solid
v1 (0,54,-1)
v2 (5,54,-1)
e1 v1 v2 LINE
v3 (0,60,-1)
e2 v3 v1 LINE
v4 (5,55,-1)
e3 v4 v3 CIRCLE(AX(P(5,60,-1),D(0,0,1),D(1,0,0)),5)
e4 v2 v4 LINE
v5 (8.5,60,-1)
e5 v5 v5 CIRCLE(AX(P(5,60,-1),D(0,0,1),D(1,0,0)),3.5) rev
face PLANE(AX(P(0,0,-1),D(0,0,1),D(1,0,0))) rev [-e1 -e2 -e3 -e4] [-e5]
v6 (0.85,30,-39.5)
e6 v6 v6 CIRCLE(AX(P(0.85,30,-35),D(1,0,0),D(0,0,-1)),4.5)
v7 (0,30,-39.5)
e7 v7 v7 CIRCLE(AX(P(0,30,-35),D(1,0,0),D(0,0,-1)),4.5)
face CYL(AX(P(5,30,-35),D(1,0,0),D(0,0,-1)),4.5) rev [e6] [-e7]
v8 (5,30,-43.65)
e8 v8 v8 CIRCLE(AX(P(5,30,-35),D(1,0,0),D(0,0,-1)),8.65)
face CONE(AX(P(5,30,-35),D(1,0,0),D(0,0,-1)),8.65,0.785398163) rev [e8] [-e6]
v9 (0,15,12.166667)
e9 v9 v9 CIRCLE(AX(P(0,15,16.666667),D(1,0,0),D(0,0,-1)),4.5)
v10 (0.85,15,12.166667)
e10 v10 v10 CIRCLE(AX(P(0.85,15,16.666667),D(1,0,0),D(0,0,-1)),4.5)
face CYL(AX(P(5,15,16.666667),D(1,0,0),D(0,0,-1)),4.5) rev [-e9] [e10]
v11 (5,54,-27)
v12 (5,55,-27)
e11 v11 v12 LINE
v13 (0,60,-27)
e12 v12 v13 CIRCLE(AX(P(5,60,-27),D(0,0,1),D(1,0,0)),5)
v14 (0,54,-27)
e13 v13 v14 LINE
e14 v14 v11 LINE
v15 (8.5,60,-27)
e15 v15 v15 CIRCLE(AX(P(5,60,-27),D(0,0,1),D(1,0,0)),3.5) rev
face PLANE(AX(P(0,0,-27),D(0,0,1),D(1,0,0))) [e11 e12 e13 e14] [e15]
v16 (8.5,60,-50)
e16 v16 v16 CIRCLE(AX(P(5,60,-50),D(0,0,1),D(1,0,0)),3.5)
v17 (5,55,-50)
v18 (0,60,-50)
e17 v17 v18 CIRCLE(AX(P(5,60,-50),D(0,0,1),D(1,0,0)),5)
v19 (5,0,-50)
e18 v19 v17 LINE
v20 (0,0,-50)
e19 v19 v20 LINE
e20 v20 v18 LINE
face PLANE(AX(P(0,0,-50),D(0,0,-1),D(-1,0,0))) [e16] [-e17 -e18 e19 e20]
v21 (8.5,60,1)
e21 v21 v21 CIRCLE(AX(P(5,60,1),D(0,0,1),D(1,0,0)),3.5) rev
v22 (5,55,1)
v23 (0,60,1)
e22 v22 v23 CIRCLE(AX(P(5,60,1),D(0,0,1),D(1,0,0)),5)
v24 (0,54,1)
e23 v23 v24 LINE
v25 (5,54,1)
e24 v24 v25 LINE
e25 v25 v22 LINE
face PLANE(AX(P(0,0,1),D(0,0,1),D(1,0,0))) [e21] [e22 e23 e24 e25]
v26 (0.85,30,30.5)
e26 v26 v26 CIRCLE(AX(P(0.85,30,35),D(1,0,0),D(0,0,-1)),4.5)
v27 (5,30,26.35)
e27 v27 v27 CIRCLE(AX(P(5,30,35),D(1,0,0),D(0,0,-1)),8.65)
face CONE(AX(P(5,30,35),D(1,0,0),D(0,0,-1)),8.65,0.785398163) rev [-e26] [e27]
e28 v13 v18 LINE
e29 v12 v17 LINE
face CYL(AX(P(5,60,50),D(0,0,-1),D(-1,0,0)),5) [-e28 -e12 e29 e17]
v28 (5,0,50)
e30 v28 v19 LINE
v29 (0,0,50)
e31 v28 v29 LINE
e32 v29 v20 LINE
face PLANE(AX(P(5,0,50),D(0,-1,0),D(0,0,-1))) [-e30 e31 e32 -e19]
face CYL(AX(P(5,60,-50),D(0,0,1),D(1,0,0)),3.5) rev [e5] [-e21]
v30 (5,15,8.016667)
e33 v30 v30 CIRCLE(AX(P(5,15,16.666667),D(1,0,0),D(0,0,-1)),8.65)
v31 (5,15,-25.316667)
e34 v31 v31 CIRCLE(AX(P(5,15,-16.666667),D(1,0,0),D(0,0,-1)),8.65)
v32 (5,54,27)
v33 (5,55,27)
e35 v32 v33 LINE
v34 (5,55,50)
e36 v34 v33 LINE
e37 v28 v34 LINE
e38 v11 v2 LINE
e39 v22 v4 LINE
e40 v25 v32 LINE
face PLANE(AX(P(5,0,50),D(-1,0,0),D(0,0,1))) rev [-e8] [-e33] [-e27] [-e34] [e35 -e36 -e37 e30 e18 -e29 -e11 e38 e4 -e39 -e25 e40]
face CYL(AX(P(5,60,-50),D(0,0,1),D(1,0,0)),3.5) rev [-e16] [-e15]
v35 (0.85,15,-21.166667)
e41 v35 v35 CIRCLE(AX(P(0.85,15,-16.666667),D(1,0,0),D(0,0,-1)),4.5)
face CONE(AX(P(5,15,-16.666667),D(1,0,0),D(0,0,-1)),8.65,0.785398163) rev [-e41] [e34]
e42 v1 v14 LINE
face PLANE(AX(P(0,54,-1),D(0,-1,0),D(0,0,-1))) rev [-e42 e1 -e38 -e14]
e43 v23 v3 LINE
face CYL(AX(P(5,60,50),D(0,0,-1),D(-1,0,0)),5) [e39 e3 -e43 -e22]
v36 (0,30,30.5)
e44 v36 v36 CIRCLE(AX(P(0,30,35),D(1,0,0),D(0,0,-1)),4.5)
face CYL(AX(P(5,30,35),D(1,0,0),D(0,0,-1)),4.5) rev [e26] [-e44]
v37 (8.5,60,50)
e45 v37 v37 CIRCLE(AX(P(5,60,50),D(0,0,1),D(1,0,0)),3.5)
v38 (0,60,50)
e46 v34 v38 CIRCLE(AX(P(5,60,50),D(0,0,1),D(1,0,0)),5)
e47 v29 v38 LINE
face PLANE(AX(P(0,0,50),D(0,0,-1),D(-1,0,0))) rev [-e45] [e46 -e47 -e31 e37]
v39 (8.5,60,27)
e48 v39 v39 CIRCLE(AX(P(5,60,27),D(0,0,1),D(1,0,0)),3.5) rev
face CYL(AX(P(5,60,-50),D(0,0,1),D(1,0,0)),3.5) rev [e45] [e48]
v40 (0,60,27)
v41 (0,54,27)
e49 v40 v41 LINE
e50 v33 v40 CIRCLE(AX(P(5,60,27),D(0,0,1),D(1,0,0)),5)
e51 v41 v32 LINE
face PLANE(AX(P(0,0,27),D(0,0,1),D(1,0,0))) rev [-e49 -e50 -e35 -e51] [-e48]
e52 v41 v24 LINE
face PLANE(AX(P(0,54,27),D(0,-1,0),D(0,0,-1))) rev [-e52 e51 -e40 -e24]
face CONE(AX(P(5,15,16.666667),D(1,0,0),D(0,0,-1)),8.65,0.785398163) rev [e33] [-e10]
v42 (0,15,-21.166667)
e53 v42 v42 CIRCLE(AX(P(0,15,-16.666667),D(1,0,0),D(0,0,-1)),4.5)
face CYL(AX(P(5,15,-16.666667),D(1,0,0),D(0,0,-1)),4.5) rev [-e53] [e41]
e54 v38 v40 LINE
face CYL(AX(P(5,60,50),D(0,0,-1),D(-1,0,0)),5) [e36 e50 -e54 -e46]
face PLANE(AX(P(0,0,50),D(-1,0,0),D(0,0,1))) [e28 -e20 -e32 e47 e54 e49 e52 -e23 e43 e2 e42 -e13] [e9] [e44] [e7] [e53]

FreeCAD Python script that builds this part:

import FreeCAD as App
import Part
import Sketcher
from FreeCAD import Vector
Q = App.Units.Quantity

doc = App.newDocument("Part")
params = doc.addObject("Spreadsheet::Sheet", "Params")
for row, (alias, value) in enumerate([
    ("sketch1_width", "5 mm"),
    ("sketch1_height", "60 mm"),
    ("pad1_length", "100 mm"),
    ("sketch2_diameter", "10 mm"),
    ("sketch3_height", "100 mm"),
    ("sketch4_diameter", "7 mm"),
    ("sketch5_width", "5 mm"),
    ("sketch5_height", "4.5 mm"),
    ("sketch5_width2", "0.85 mm"),
    ("groove_angle", "360 deg"),
    ("linearpattern_pitch", "23.687784 mm"),
    ("sketch6_width", "5 mm"),
    ("sketch6_height", "4.5 mm"),
    ("sketch6_width2", "0.85 mm"),
    ("groove2_angle", "360 deg"),
    ("sketch7_width", "11 mm"),
    ("sketch7_height", "26 mm"),
], start=1):
    params.set(f"A{row}", alias)
    params.set(f"B{row}", "=" + value)
    params.setAlias(f"B{row}", alias)

body = doc.addObject("PartDesign::Body", "Body")

# Sketch on XY plane
sketch1 = body.newObject("Sketcher::SketchObject", "Sketch")
sketch1.AttachmentSupport = (doc.getObject("XY_Plane"), [""])
sketch1.MapMode = "FlatFace"
sketch1.addGeometry(Part.LineSegment(Vector(0, 60, 0), Vector(0, 0, 0)), False)
sketch1.addGeometry(Part.LineSegment(Vector(0, 0, 0), Vector(5, 0, 0)), False)
sketch1.addGeometry(Part.LineSegment(Vector(5, 0, 0), Vector(5, 60, 0)), False)
sketch1.addGeometry(Part.LineSegment(Vector(5, 60, 0), Vector(0, 60, 0)), False)
sketch1.addConstraint(Sketcher.Constraint("Coincident", 0, 2, 1, 1))
sketch1.addConstraint(Sketcher.Constraint("Coincident", 1, 2, 2, 1))
sketch1.addConstraint(Sketcher.Constraint("Coincident", 2, 2, 3, 1))
sketch1.addConstraint(Sketcher.Constraint("Coincident", 3, 2, 0, 1))
sketch1.addConstraint(Sketcher.Constraint("Vertical", 0))
sketch1.addConstraint(Sketcher.Constraint("Horizontal", 1))
sketch1.addConstraint(Sketcher.Constraint("Vertical", 2))
sketch1.addConstraint(Sketcher.Constraint("Horizontal", 3))
sketch1.addConstraint(Sketcher.Constraint("Coincident", 0, 2, -1, 1))
sketch1.addConstraint(Sketcher.Constraint("DistanceX", 1, 1, 1, 2, 5.0))
sketch1.addConstraint(Sketcher.Constraint("DistanceY", 0, 2, 0, 1, 60.0))
sketch1.setExpression("Constraints[9]", "Params.sketch1_width")
sketch1.setExpression("Constraints[10]", "Params.sketch1_height")
pad1 = body.newObject("PartDesign::Pad", "Pad")
pad1.Profile = sketch1
pad1.setExpression("Length", "Params.pad1_length")
pad1.Midplane = True

# Sketch on XY plane
sketch2 = body.newObject("Sketcher::SketchObject", "Sketch001")
sketch2.AttachmentSupport = (doc.getObject("XY_Plane"), [""])
sketch2.MapMode = "FlatFace"
sketch2.AttachmentOffset = App.Placement(Vector(0, 0, 50), App.Rotation())
sketch2.addGeometry(Part.Circle(Vector(5, 60, 0), Vector(0, 0, 1), 5), False)
sketch2.addConstraint(Sketcher.Constraint("Diameter", 0, 10.0))
sketch2.addConstraint(Sketcher.Constraint("DistanceX", -1, 1, 0, 3, 5.0))
sketch2.addConstraint(Sketcher.Constraint("DistanceY", -1, 1, 0, 3, 60.0))
sketch2.setExpression("Constraints[0]", "Params.sketch2_diameter")

# Sketch on XZ plane
sketch3 = body.newObject("Sketcher::SketchObject", "Sketch002")
sketch3.AttachmentSupport = (doc.getObject("XZ_Plane"), [""])
sketch3.MapMode = "FlatFace"
sketch3.AttachmentOffset = App.Placement(Vector(0, 0, -60), App.Rotation())
sketch3.addGeometry(Part.LineSegment(Vector(0, 50, 0), Vector(0, -50, 0)), False)
sketch3.addConstraint(Sketcher.Constraint("Vertical", 0))
sketch3.addConstraint(Sketcher.Constraint("Symmetric", 0, 1, 0, 2, -1, 1))
sketch3.addConstraint(Sketcher.Constraint("DistanceY", 0, 2, 0, 1, 100.0))
sketch3.setExpression("Constraints[2]", "Params.sketch3_height")
doc.recompute()

additivepipe = body.newObject("PartDesign::AdditivePipe", "AdditivePipe")
additivepipe.Profile = sketch2
additivepipe.Spine = (sketch3, ["Edge1"])

# Sketch on XY plane
sketch4 = body.newObject("Sketcher::SketchObject", "Sketch003")
sketch4.AttachmentSupport = (doc.getObject("XY_Plane"), [""])
sketch4.MapMode = "FlatFace"
sketch4.AttachmentOffset = App.Placement(Vector(0, 0, 50), App.Rotation())
sketch4.addGeometry(Part.Circle(Vector(5, 60, 0), Vector(0, 0, 1), 3.5), False)
sketch4.addConstraint(Sketcher.Constraint("Diameter", 0, 7.0))
sketch4.addConstraint(Sketcher.Constraint("DistanceX", -1, 1, 0, 3, 5.0))
sketch4.addConstraint(Sketcher.Constraint("DistanceY", -1, 1, 0, 3, 60.0))
sketch4.setExpression("Constraints[0]", "Params.sketch4_diameter")
pocket1 = body.newObject("PartDesign::Pocket", "Pocket")
pocket1.Profile = sketch4
pocket1.Type = "ThroughAll"

# Sketch on XZ plane
sketch5 = body.newObject("Sketcher::SketchObject", "Sketch004")
sketch5.AttachmentSupport = (doc.getObject("XZ_Plane"), [""])
sketch5.MapMode = "FlatFace"
sketch5.AttachmentOffset = App.Placement(Vector(0, 0, -30), App.Rotation())
sketch5.addGeometry(Part.LineSegment(Vector(0, 35, 0), Vector(5, 35, 0)), False)
sketch5.addGeometry(Part.LineSegment(Vector(5, 35, 0), Vector(5, 26.4, 0)), False)
sketch5.addGeometry(Part.LineSegment(Vector(5, 26.4, 0), Vector(0.8, 30.5, 0)), False)
sketch5.addGeometry(Part.LineSegment(Vector(0.8, 30.5, 0), Vector(0, 30.5, 0)), False)
sketch5.addGeometry(Part.LineSegment(Vector(0, 30.5, 0), Vector(0, 35, 0)), False)
sketch5.addGeometry(Part.LineSegment(Vector(5, 35, 0), Vector(0, 35, 0)), True)  # axis
sketch5.addConstraint(Sketcher.Constraint("Coincident", 0, 2, 1, 1))
sketch5.addConstraint(Sketcher.Constraint("Coincident", 1, 2, 2, 1))
sketch5.addConstraint(Sketcher.Constraint("Coincident", 2, 2, 3, 1))
sketch5.addConstraint(Sketcher.Constraint("Coincident", 3, 2, 4, 1))
sketch5.addConstraint(Sketcher.Constraint("Coincident", 4, 2, 0, 1))
sketch5.addConstraint(Sketcher.Constraint("Horizontal", 0))
sketch5.addConstraint(Sketcher.Constraint("Vertical", 1))
sketch5.addConstraint(Sketcher.Constraint("Horizontal", 3))
sketch5.addConstraint(Sketcher.Constraint("Vertical", 4))
sketch5.addConstraint(Sketcher.Constraint("Horizontal", 5))
sketch5.addConstraint(Sketcher.Constraint("Coincident", 5, 1, 0, 2))
sketch5.addConstraint(Sketcher.Constraint("PointOnObject", 3, 2, -2))
sketch5.addConstraint(Sketcher.Constraint("PointOnObject", 5, 2, -2))
sketch5.addConstraint(Sketcher.Constraint("DistanceX", 0, 1, 0, 2, 5.0))
sketch5.addConstraint(Sketcher.Constraint("Angle", 2, Q("135 deg")))
sketch5.addConstraint(Sketcher.Constraint("DistanceY", 4, 1, 4, 2, 4.5))
sketch5.addConstraint(Sketcher.Constraint("DistanceY", -1, 1, 0, 2, 35.0))
sketch5.addConstraint(Sketcher.Constraint("DistanceX", 3, 2, 3, 1, 0.85))
sketch5.setExpression("Constraints[13]", "Params.sketch5_width")
sketch5.setExpression("Constraints[15]", "Params.sketch5_height")
sketch5.setExpression("Constraints[17]", "Params.sketch5_width2")
groove = body.newObject("PartDesign::Groove", "Groove")
groove.Profile = sketch5
groove.ReferenceAxis = (sketch5, ["Axis0"])
groove.setExpression("Angle", "Params.groove_angle")
doc.recompute()

datumline = body.newObject("PartDesign::Line", "DatumLine")
datumline.Placement = App.Placement(Vector(0, 0, 0), App.Rotation(Vector(0, 0, 1), Vector(0, -0.63323779, -0.773957299)))
linearpattern = body.newObject("PartDesign::LinearPattern", "LinearPattern")
linearpattern.Originals = [groove]
linearpattern.Direction = (datumline, [""])
linearpattern.Mode = "offset"
linearpattern.setExpression("Offset", "Params.linearpattern_pitch")
linearpattern.Occurrences = 2
body.Tip = linearpattern
doc.recompute()

mirrored = body.newObject("PartDesign::Mirrored", "Mirrored")
mirrored.Originals = [groove]
mirrored.MirrorPlane = (doc.getObject("XY_Plane"), [""])
body.Tip = mirrored

# Sketch on XZ plane
sketch6 = body.newObject("Sketcher::SketchObject", "Sketch005")
sketch6.AttachmentSupport = (doc.getObject("XZ_Plane"), [""])
sketch6.MapMode = "FlatFace"
sketch6.AttachmentOffset = App.Placement(Vector(0, 0, -15), App.Rotation())
sketch6.addGeometry(Part.LineSegment(Vector(5, -16.7, 0), Vector(0, -16.7, 0)), False)
sketch6.addGeometry(Part.LineSegment(Vector(0, -16.7, 0), Vector(0, -12.2, 0)), False)
sketch6.addGeometry(Part.LineSegment(Vector(0, -12.2, 0), Vector(0.8, -12.2, 0)), False)
sketch6.addGeometry(Part.LineSegment(Vector(0.8, -12.2, 0), Vector(5, -8, 0)), False)
sketch6.addGeometry(Part.LineSegment(Vector(5, -8, 0), Vector(5, -16.7, 0)), False)
sketch6.addGeometry(Part.LineSegment(Vector(0, -16.7, 0), Vector(5, -16.7, 0)), True)  # axis
sketch6.addConstraint(Sketcher.Constraint("Coincident", 0, 2, 1, 1))
sketch6.addConstraint(Sketcher.Constraint("Coincident", 1, 2, 2, 1))
sketch6.addConstraint(Sketcher.Constraint("Coincident", 2, 2, 3, 1))
sketch6.addConstraint(Sketcher.Constraint("Coincident", 3, 2, 4, 1))
sketch6.addConstraint(Sketcher.Constraint("Coincident", 4, 2, 0, 1))
sketch6.addConstraint(Sketcher.Constraint("Horizontal", 0))
sketch6.addConstraint(Sketcher.Constraint("Vertical", 1))
sketch6.addConstraint(Sketcher.Constraint("Horizontal", 2))
sketch6.addConstraint(Sketcher.Constraint("Vertical", 4))
sketch6.addConstraint(Sketcher.Constraint("Horizontal", 5))
sketch6.addConstraint(Sketcher.Constraint("Coincident", 5, 1, 0, 2))
sketch6.addConstraint(Sketcher.Constraint("PointOnObject", 0, 2, -2))
sketch6.addConstraint(Sketcher.Constraint("Vertical", 3, 2, 5, 2))
sketch6.addConstraint(Sketcher.Constraint("DistanceX", 0, 2, 0, 1, 5.0))
sketch6.addConstraint(Sketcher.Constraint("Angle", 3, Q("45 deg")))
sketch6.addConstraint(Sketcher.Constraint("DistanceY", 1, 1, 1, 2, 4.5))
sketch6.addConstraint(Sketcher.Constraint("DistanceX", 2, 1, 2, 2, 0.85))
sketch6.addConstraint(Sketcher.Constraint("DistanceY", 0, 2, -1, 1, 16.666667))
sketch6.setExpression("Constraints[13]", "Params.sketch6_width")
sketch6.setExpression("Constraints[15]", "Params.sketch6_height")
sketch6.setExpression("Constraints[16]", "Params.sketch6_width2")
groove2 = body.newObject("PartDesign::Groove", "Groove001")
groove2.Profile = sketch6
groove2.ReferenceAxis = (sketch6, ["Axis0"])
groove2.setExpression("Angle", "Params.groove2_angle")

# Sketch on YZ plane
sketch7 = body.newObject("Sketcher::SketchObject", "Sketch006")
sketch7.AttachmentSupport = (doc.getObject("YZ_Plane"), [""])
sketch7.MapMode = "FlatFace"
sketch7.AttachmentOffset = App.Placement(Vector(0, 0, 5), App.Rotation())
sketch7.addGeometry(Part.LineSegment(Vector(65, 27, 0), Vector(54, 27, 0)), False)
sketch7.addGeometry(Part.LineSegment(Vector(54, 27, 0), Vector(54, 1, 0)), False)
sketch7.addGeometry(Part.LineSegment(Vector(54, 1, 0), Vector(65, 1, 0)), False)
sketch7.addGeometry(Part.LineSegment(Vector(65, 1, 0), Vector(65, 27, 0)), False)
sketch7.addGeometry(Part.LineSegment(Vector(65, -1, 0), Vector(54, -1, 0)), False)
sketch7.addGeometry(Part.LineSegment(Vector(54, -1, 0), Vector(54, -27, 0)), False)
sketch7.addGeometry(Part.LineSegment(Vector(54, -27, 0), Vector(65, -27, 0)), False)
sketch7.addGeometry(Part.LineSegment(Vector(65, -27, 0), Vector(65, -1, 0)), False)
sketch7.addConstraint(Sketcher.Constraint("Coincident", 0, 2, 1, 1))
sketch7.addConstraint(Sketcher.Constraint("Coincident", 1, 2, 2, 1))
sketch7.addConstraint(Sketcher.Constraint("Coincident", 2, 2, 3, 1))
sketch7.addConstraint(Sketcher.Constraint("Coincident", 3, 2, 0, 1))
sketch7.addConstraint(Sketcher.Constraint("Coincident", 4, 2, 5, 1))
sketch7.addConstraint(Sketcher.Constraint("Coincident", 5, 2, 6, 1))
sketch7.addConstraint(Sketcher.Constraint("Coincident", 6, 2, 7, 1))
sketch7.addConstraint(Sketcher.Constraint("Coincident", 7, 2, 4, 1))
sketch7.addConstraint(Sketcher.Constraint("Horizontal", 0))
sketch7.addConstraint(Sketcher.Constraint("Vertical", 1))
sketch7.addConstraint(Sketcher.Constraint("Horizontal", 2))
sketch7.addConstraint(Sketcher.Constraint("Vertical", 3))
sketch7.addConstraint(Sketcher.Constraint("Horizontal", 4))
sketch7.addConstraint(Sketcher.Constraint("Vertical", 5))
sketch7.addConstraint(Sketcher.Constraint("Horizontal", 6))
sketch7.addConstraint(Sketcher.Constraint("Vertical", 7))
sketch7.addConstraint(Sketcher.Constraint("Symmetric", 1, 2, 4, 2, -1))
sketch7.addConstraint(Sketcher.Constraint("Symmetric", 3, 2, 6, 2, -1))
sketch7.addConstraint(Sketcher.Constraint("DistanceX", 0, 2, 0, 1, 11.0))
sketch7.addConstraint(Sketcher.Constraint("DistanceY", 1, 2, 1, 1, 26.0))
sketch7.addConstraint(Sketcher.Constraint("DistanceX", -1, 1, 0, 2, 54.0))
sketch7.addConstraint(Sketcher.Constraint("DistanceY", -1, 1, 0, 2, 27.0))
sketch7.setExpression("Constraints[18]", "Params.sketch7_width")
sketch7.setExpression("Constraints[19]", "Params.sketch7_height")
pocket2 = body.newObject("PartDesign::Pocket", "Pocket001")
pocket2.Profile = sketch7
pocket2.Type = "ThroughAll"
pocket2.Midplane = True

doc.recompute()
